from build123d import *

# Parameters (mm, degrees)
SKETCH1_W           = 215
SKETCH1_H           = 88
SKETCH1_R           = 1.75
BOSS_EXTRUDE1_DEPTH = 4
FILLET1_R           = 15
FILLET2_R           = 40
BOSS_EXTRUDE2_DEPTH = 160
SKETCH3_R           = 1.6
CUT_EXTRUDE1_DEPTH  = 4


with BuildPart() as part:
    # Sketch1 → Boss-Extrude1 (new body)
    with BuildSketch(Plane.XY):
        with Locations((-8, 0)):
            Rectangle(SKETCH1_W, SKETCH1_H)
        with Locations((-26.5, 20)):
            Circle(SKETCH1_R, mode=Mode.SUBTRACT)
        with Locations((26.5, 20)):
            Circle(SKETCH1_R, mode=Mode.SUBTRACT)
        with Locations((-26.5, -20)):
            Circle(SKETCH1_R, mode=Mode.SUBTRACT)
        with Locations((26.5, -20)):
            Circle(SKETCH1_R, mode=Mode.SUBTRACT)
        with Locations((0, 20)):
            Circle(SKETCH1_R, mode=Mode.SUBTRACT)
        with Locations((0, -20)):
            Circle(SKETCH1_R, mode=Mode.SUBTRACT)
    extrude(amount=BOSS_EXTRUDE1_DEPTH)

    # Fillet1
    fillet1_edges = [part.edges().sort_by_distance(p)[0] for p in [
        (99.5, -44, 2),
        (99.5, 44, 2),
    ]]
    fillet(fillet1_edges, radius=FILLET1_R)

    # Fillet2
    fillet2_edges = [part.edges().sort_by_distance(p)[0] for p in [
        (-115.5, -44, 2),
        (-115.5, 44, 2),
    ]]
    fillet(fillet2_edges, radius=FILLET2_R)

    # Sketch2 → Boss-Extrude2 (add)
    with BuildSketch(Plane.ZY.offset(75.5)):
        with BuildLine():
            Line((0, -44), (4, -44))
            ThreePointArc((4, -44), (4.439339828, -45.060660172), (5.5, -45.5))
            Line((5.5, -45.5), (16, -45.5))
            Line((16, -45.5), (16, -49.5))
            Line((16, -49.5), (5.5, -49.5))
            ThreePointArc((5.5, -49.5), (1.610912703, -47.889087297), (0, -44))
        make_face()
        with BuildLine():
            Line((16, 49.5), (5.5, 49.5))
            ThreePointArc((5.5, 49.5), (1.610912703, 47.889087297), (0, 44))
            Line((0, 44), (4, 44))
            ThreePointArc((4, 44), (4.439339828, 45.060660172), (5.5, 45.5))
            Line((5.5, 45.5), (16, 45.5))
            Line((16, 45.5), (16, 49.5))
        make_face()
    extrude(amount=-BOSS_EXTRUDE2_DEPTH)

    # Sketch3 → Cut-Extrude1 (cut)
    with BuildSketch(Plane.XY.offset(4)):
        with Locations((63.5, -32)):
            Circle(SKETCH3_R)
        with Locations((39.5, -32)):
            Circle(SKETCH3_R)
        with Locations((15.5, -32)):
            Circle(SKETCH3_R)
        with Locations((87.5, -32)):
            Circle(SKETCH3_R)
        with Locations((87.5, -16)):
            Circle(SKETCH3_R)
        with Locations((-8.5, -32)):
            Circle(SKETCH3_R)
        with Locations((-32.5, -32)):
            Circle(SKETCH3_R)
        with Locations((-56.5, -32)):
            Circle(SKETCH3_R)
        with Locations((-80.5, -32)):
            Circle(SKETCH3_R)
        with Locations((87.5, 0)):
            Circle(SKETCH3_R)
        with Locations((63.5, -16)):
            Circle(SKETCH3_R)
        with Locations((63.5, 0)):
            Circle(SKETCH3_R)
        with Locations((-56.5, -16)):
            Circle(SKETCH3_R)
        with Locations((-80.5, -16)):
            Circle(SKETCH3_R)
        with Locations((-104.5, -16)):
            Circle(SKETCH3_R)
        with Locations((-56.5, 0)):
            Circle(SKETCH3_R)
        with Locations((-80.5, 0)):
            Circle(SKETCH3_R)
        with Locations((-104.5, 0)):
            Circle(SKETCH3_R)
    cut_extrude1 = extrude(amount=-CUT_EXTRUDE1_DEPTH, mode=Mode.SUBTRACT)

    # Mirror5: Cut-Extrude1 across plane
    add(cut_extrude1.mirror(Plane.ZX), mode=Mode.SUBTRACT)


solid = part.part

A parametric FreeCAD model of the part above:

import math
import FreeCAD as App
import Part
import Sketcher

V = App.Vector
Q = App.Units.Quantity


def edges_at(feature, points):
    """Names of the edges that pass closest to the given points."""
    edges = feature.Shape.Edges
    near = lambda p: min(range(len(edges)), key=lambda i: edges[i].distToShape(Part.Vertex(*p))[0])
    return sorted({f"Edge{near(p) + 1}" for p in points})


def add_polygon(sketch, points):
    """Adds a closed chain of lines whose ends are joined by coincident constraints."""
    first, n = sketch.GeometryCount, len(points)
    for a, b in zip(points, points[1:] + points[:1]):
        sketch.addGeometry(Part.LineSegment(App.Vector(*a, 0), App.Vector(*b, 0)), False)
    for i in range(n):
        sketch.addConstraint(Sketcher.Constraint("Coincident", first + i, 2, first + (i + 1) % n, 1))

doc = App.newDocument("Part")
body = doc.addObject("PartDesign::Body", "Body")

# Sketch on XY plane
sketch1 = body.newObject("Sketcher::SketchObject", "Sketch")
sketch1.AttachmentSupport = (doc.getObject("XY_Plane"), [""])
sketch1.MapMode = "FlatFace"
add_polygon(sketch1, [(-115.5, 44), (-115.5, -44), (99.5, -44), (99.5, 44)])  # lines 0-3
sketch1.addGeometry(Part.Circle(V(-26.5, -20, 0), V(0, 0, 1), 1.75), False)  # 4
sketch1.addGeometry(Part.Circle(V(0, -20, 0), V(0, 0, 1), 1.75), False)  # 5
sketch1.addGeometry(Part.Circle(V(26.5, -20, 0), V(0, 0, 1), 1.75), False)  # 6
sketch1.addGeometry(Part.Circle(V(-26.5, 20, 0), V(0, 0, 1), 1.75), False)  # 7
sketch1.addGeometry(Part.Circle(V(0, 20, 0), V(0, 0, 1), 1.75), False)  # 8
sketch1.addGeometry(Part.Circle(V(26.5, 20, 0), V(0, 0, 1), 1.75), False)  # 9
sketch1.addConstraint([
    Sketcher.Constraint("Vertical", 0),
    Sketcher.Constraint("Horizontal", 1),
    Sketcher.Constraint("Vertical", 2),
    Sketcher.Constraint("Horizontal", 3),
    Sketcher.Constraint("Equal", 4, 5),
    Sketcher.Constraint("Equal", 5, 6),
    Sketcher.Constraint("Equal", 6, 7),
    Sketcher.Constraint("Equal", 7, 8),
    Sketcher.Constraint("Equal", 8, 9),
    Sketcher.Constraint("Symmetric", 6, 3, 7, 3, -1, 1),
    Sketcher.Constraint("Symmetric", 5, 3, 8, 3, -1, 1),
    Sketcher.Constraint("Symmetric", 4, 3, 9, 3, -1, 1),
    Sketcher.Constraint("Symmetric", 4, 3, 6, 3, -2),
    Sketcher.Constraint("PointOnObject", 5, 3, -2),
    Sketcher.Constraint("Horizontal", 4, 3, 5, 3),
    Sketcher.Constraint("Diameter", 4, Q("3.5 mm")),
    Sketcher.Constraint("DistanceX", 1, 1, 1, 2, Q("215 mm")),
    Sketcher.Constraint("DistanceY", 0, 2, 0, 1, Q("88 mm")),
    Sketcher.Constraint("DistanceY", 4, 3, -1, 1, Q("20 mm")),
    Sketcher.Constraint("DistanceY", 0, 2, -1, 1, Q("44 mm")),
    Sketcher.Constraint("DistanceX", 4, 3, 6, 3, Q("53 mm")),
    Sketcher.Constraint("DistanceX", 0, 2, 4, 3, Q("89 mm")),
])
pad1 = body.newObject("PartDesign::Pad", "Pad")
pad1.Profile = sketch1
pad1.Length = 4
doc.recompute()

fillet = body.newObject("PartDesign::Fillet", "Fillet")
fillet.Base = (pad1, edges_at(pad1, [(99.5, -44, 2), (99.5, 44, 2)]))
fillet.Radius = 15
doc.recompute()

fillet2 = body.newObject("PartDesign::Fillet", "Fillet001")
fillet2.Base = (fillet, edges_at(fillet, [(-115.5, -44, 2), (-115.5, 44, 2)]))
fillet2.Radius = 40

# Sketch on YZ plane
sketch2 = body.newObject("Sketcher::SketchObject", "Sketch001")
sketch2.AttachmentSupport = (doc.getObject("YZ_Plane"), [""])
sketch2.MapMode = "FlatFace"
sketch2.AttachmentOffset = App.Placement(V(0, 0, -75.5), App.Rotation())
sketch2.addGeometry([
    Part.LineSegment(V(-44, 4, 0), V(-44, 0, 0)),  # 0
    Part.ArcOfCircle(Part.Circle(V(-44, 5.5, 0), V(0, 0, 1), 5.5), math.radians(180), math.radians(270)),  # 1
    Part.LineSegment(V(-49.5, 5.5, 0), V(-49.5, 16, 0)),  # 2
    Part.LineSegment(V(-49.5, 16, 0), V(-45.5, 16, 0)),  # 3
    Part.LineSegment(V(-45.5, 16, 0), V(-45.5, 5.5, 0)),  # 4
    Part.ArcOfCircle(Part.Circle(V(-44, 5.5, 0), V(0, 0, 1), 1.5), math.radians(180), math.radians(270)),  # 5
    Part.LineSegment(V(49.5, 16, 0), V(49.5, 5.5, 0)),  # 6
    Part.ArcOfCircle(Part.Circle(V(44, 5.5, 0), V(0, 0, 1), 5.5), math.radians(-90), math.radians(0)),  # 7
    Part.LineSegment(V(44, 0, 0), V(44, 4, 0)),  # 8
    Part.ArcOfCircle(Part.Circle(V(44, 5.5, 0), V(0, 0, 1), 1.5), math.radians(-90), math.radians(0)),  # 9
    Part.LineSegment(V(45.5, 5.5, 0), V(45.5, 16, 0)),  # 10
    Part.LineSegment(V(45.5, 16, 0), V(49.5, 16, 0)),  # 11
], False)
sketch2.addConstraint([
    Sketcher.Constraint("Coincident", 0, 2, 1, 2),
    Sketcher.Constraint("Tangent", 1, 1, 2, 1),
    Sketcher.Constraint("Coincident", 2, 2, 3, 1),
    Sketcher.Constraint("Coincident", 3, 2, 4, 1),
    Sketcher.Constraint("Tangent", 4, 2, 5, 1),
    Sketcher.Constraint("Coincident", 5, 2, 0, 1),
    Sketcher.Constraint("Tangent", 6, 2, 7, 2),
    Sketcher.Constraint("Coincident", 7, 1, 8, 1),
    Sketcher.Constraint("Coincident", 8, 2, 9, 1),
    Sketcher.Constraint("Tangent", 9, 2, 10, 1),
    Sketcher.Constraint("Coincident", 10, 2, 11, 1),
    Sketcher.Constraint("Coincident", 11, 2, 6, 1),
    Sketcher.Constraint("Vertical", 0),
    Sketcher.Constraint("Vertical", 2),
    Sketcher.Constraint("Horizontal", 3),
    Sketcher.Constraint("Vertical", 4),
    Sketcher.Constraint("Vertical", 6),
    Sketcher.Constraint("Vertical", 8),
    Sketcher.Constraint("Vertical", 10),
    Sketcher.Constraint("Horizontal", 11),
    Sketcher.Constraint("Coincident", 5, 3, 1, 3),
    Sketcher.Constraint("Coincident", 9, 3, 7, 3),
    Sketcher.Constraint("Equal", 1, 7),
    Sketcher.Constraint("Equal", 5, 9),
    Sketcher.Constraint("Symmetric", 0, 2, 7, 1, -1, 1),
    Sketcher.Constraint("Symmetric", 1, 3, 7, 3, -2),
    Sketcher.Constraint("Horizontal", 3, 2, 10, 2),
    Sketcher.Constraint("Vertical", 5, 3, 0, 2),
    Sketcher.Constraint("Radius", 1, Q("5.5 mm")),
    Sketcher.Constraint("Radius", 5, Q("1.5 mm")),
    Sketcher.Constraint("DistanceY", 2, 1, 2, 2, Q("10.5 mm")),
    Sketcher.Constraint("DistanceX", 1, 3, -1, 1, Q("44 mm")),
])
pad2 = body.newObject("PartDesign::Pad", "Pad001")
pad2.Profile = sketch2
pad2.Length = 160

# Sketch on XY plane
sketch3 = body.newObject("Sketcher::SketchObject", "Sketch002")
sketch3.AttachmentSupport = (doc.getObject("XY_Plane"), [""])
sketch3.MapMode = "FlatFace"
sketch3.AttachmentOffset = App.Placement(V(0, 0, 4), App.Rotation())
sketch3.addGeometry([
    Part.Circle(V(63.5, -32, 0), V(0, 0, 1), 1.6),  # 0
    Part.Circle(V(39.5, -32, 0), V(0, 0, 1), 1.6),  # 1
    Part.Circle(V(15.5, -32, 0), V(0, 0, 1), 1.6),  # 2
    Part.Circle(V(87.5, -32, 0), V(0, 0, 1), 1.6),  # 3
    Part.Circle(V(87.5, -16, 0), V(0, 0, 1), 1.6),  # 4
    Part.Circle(V(-8.5, -32, 0), V(0, 0, 1), 1.6),  # 5
    Part.Circle(V(-32.5, -32, 0), V(0, 0, 1), 1.6),  # 6
    Part.Circle(V(-56.5, -32, 0), V(0, 0, 1), 1.6),  # 7
    Part.Circle(V(-80.5, -32, 0), V(0, 0, 1), 1.6),  # 8
    Part.Circle(V(87.5, 0, 0), V(0, 0, 1), 1.6),  # 9
    Part.Circle(V(63.5, -16, 0), V(0, 0, 1), 1.6),  # 10
    Part.Circle(V(63.5, 0, 0), V(0, 0, 1), 1.6),  # 11
    Part.Circle(V(-56.5, -16, 0), V(0, 0, 1), 1.6),  # 12
    Part.Circle(V(-80.5, -16, 0), V(0, 0, 1), 1.6),  # 13
    Part.Circle(V(-104.5, -16, 0), V(0, 0, 1), 1.6),  # 14
    Part.Circle(V(-56.5, 0, 0), V(0, 0, 1), 1.6),  # 15
    Part.Circle(V(-80.5, 0, 0), V(0, 0, 1), 1.6),  # 16
    Part.Circle(V(-104.5, 0, 0), V(0, 0, 1), 1.6),  # 17
], False)
sketch3.addConstraint([
    Sketcher.Constraint("Equal", 0, 1),
    Sketcher.Constraint("Equal", 1, 2),
    Sketcher.Constraint("Equal", 2, 3),
    Sketcher.Constraint("Equal", 3, 4),
    Sketcher.Constraint("Equal", 4, 5),
    Sketcher.Constraint("Equal", 5, 6),
    Sketcher.Constraint("Equal", 6, 7),
    Sketcher.Constraint("Equal", 7, 8),
    Sketcher.Constraint("Equal", 8, 9),
    Sketcher.Constraint("Equal", 9, 10),
    Sketcher.Constraint("Equal", 10, 11),
    Sketcher.Constraint("Equal", 11, 12),
    Sketcher.Constraint("Equal", 12, 13),
    Sketcher.Constraint("Equal", 13, 14),
    Sketcher.Constraint("Equal", 14, 15),
    Sketcher.Constraint("Equal", 15, 16),
    Sketcher.Constraint("Equal", 16, 17),
    Sketcher.Constraint("PointOnObject", 9, 3, -1),
    Sketcher.Constraint("PointOnObject", 11, 3, -1),
    Sketcher.Constraint("PointOnObject", 15, 3, -1),
    Sketcher.Constraint("PointOnObject", 16, 3, -1),
    Sketcher.Constraint("PointOnObject", 17, 3, -1),
    Sketcher.Constraint("Horizontal", 0, 3, 1, 3),
    Sketcher.Constraint("Horizontal", 1, 3, 2, 3),
    Sketcher.Constraint("Horizontal", 2, 3, 3, 3),
    Sketcher.Constraint("Horizontal", 3, 3, 5, 3),
    Sketcher.Constraint("Horizontal", 5, 3, 6, 3),
    Sketcher.Constraint("Horizontal", 6, 3, 7, 3),
    Sketcher.Constraint("Horizontal", 7, 3, 8, 3),
    Sketcher.Constraint("Horizontal", 4, 3, 10, 3),
    Sketcher.Constraint("Horizontal", 10, 3, 12, 3),
    Sketcher.Constraint("Horizontal", 12, 3, 13, 3),
    Sketcher.Constraint("Horizontal", 13, 3, 14, 3),
    Sketcher.Constraint("Vertical", 3, 3, 4, 3),
    Sketcher.Constraint("Vertical", 4, 3, 9, 3),
    Sketcher.Constraint("Vertical", 0, 3, 10, 3),
    Sketcher.Constraint("Vertical", 10, 3, 11, 3),
    Sketcher.Constraint("Vertical", 7, 3, 12, 3),
    Sketcher.Constraint("Vertical", 8, 3, 13, 3),
    Sketcher.Constraint("Vertical", 12, 3, 15, 3),
    Sketcher.Constraint("Vertical", 13, 3, 16, 3),
    Sketcher.Constraint("Vertical", 14, 3, 17, 3),
    Sketcher.Constraint("Diameter", 0, Q("3.2 mm")),
    Sketcher.Constraint("DistanceY", 0, 3, -1, 1, Q("32 mm")),
    Sketcher.Constraint("DistanceY", 4, 3, -1, 1, Q("16 mm")),
    Sketcher.Constraint("DistanceX", 1, 3, 0, 3, Q("24 mm")),
    Sketcher.Constraint("DistanceX", 2, 3, 1, 3, Q("24 mm")),
    Sketcher.Constraint("DistanceX", 0, 3, 3, 3, Q("24 mm")),
    Sketcher.Constraint("DistanceX", 5, 3, 2, 3, Q("24 mm")),
    Sketcher.Constraint("DistanceX", 6, 3, 5, 3, Q("24 mm")),
    Sketcher.Constraint("DistanceX", 7, 3, 6, 3, Q("24 mm")),
    Sketcher.Constraint("DistanceX", 8, 3, 7, 3, Q("24 mm")),
    Sketcher.Constraint("DistanceX", 14, 3, 13, 3, Q("24 mm")),
    Sketcher.Constraint("DistanceX", -1, 1, 0, 3, Q("63.5 mm")),
])
pocket1 = body.newObject("PartDesign::Pocket", "Pocket")
pocket1.Profile = sketch3
pocket1.Length = 4
doc.recompute()

mirrored = body.newObject("PartDesign::Mirrored", "Mirrored")
mirrored.Originals = [pocket1]
mirrored.MirrorPlane = (doc.getObject("XZ_Plane"), [""])
body.Tip = mirrored

doc.recompute()
